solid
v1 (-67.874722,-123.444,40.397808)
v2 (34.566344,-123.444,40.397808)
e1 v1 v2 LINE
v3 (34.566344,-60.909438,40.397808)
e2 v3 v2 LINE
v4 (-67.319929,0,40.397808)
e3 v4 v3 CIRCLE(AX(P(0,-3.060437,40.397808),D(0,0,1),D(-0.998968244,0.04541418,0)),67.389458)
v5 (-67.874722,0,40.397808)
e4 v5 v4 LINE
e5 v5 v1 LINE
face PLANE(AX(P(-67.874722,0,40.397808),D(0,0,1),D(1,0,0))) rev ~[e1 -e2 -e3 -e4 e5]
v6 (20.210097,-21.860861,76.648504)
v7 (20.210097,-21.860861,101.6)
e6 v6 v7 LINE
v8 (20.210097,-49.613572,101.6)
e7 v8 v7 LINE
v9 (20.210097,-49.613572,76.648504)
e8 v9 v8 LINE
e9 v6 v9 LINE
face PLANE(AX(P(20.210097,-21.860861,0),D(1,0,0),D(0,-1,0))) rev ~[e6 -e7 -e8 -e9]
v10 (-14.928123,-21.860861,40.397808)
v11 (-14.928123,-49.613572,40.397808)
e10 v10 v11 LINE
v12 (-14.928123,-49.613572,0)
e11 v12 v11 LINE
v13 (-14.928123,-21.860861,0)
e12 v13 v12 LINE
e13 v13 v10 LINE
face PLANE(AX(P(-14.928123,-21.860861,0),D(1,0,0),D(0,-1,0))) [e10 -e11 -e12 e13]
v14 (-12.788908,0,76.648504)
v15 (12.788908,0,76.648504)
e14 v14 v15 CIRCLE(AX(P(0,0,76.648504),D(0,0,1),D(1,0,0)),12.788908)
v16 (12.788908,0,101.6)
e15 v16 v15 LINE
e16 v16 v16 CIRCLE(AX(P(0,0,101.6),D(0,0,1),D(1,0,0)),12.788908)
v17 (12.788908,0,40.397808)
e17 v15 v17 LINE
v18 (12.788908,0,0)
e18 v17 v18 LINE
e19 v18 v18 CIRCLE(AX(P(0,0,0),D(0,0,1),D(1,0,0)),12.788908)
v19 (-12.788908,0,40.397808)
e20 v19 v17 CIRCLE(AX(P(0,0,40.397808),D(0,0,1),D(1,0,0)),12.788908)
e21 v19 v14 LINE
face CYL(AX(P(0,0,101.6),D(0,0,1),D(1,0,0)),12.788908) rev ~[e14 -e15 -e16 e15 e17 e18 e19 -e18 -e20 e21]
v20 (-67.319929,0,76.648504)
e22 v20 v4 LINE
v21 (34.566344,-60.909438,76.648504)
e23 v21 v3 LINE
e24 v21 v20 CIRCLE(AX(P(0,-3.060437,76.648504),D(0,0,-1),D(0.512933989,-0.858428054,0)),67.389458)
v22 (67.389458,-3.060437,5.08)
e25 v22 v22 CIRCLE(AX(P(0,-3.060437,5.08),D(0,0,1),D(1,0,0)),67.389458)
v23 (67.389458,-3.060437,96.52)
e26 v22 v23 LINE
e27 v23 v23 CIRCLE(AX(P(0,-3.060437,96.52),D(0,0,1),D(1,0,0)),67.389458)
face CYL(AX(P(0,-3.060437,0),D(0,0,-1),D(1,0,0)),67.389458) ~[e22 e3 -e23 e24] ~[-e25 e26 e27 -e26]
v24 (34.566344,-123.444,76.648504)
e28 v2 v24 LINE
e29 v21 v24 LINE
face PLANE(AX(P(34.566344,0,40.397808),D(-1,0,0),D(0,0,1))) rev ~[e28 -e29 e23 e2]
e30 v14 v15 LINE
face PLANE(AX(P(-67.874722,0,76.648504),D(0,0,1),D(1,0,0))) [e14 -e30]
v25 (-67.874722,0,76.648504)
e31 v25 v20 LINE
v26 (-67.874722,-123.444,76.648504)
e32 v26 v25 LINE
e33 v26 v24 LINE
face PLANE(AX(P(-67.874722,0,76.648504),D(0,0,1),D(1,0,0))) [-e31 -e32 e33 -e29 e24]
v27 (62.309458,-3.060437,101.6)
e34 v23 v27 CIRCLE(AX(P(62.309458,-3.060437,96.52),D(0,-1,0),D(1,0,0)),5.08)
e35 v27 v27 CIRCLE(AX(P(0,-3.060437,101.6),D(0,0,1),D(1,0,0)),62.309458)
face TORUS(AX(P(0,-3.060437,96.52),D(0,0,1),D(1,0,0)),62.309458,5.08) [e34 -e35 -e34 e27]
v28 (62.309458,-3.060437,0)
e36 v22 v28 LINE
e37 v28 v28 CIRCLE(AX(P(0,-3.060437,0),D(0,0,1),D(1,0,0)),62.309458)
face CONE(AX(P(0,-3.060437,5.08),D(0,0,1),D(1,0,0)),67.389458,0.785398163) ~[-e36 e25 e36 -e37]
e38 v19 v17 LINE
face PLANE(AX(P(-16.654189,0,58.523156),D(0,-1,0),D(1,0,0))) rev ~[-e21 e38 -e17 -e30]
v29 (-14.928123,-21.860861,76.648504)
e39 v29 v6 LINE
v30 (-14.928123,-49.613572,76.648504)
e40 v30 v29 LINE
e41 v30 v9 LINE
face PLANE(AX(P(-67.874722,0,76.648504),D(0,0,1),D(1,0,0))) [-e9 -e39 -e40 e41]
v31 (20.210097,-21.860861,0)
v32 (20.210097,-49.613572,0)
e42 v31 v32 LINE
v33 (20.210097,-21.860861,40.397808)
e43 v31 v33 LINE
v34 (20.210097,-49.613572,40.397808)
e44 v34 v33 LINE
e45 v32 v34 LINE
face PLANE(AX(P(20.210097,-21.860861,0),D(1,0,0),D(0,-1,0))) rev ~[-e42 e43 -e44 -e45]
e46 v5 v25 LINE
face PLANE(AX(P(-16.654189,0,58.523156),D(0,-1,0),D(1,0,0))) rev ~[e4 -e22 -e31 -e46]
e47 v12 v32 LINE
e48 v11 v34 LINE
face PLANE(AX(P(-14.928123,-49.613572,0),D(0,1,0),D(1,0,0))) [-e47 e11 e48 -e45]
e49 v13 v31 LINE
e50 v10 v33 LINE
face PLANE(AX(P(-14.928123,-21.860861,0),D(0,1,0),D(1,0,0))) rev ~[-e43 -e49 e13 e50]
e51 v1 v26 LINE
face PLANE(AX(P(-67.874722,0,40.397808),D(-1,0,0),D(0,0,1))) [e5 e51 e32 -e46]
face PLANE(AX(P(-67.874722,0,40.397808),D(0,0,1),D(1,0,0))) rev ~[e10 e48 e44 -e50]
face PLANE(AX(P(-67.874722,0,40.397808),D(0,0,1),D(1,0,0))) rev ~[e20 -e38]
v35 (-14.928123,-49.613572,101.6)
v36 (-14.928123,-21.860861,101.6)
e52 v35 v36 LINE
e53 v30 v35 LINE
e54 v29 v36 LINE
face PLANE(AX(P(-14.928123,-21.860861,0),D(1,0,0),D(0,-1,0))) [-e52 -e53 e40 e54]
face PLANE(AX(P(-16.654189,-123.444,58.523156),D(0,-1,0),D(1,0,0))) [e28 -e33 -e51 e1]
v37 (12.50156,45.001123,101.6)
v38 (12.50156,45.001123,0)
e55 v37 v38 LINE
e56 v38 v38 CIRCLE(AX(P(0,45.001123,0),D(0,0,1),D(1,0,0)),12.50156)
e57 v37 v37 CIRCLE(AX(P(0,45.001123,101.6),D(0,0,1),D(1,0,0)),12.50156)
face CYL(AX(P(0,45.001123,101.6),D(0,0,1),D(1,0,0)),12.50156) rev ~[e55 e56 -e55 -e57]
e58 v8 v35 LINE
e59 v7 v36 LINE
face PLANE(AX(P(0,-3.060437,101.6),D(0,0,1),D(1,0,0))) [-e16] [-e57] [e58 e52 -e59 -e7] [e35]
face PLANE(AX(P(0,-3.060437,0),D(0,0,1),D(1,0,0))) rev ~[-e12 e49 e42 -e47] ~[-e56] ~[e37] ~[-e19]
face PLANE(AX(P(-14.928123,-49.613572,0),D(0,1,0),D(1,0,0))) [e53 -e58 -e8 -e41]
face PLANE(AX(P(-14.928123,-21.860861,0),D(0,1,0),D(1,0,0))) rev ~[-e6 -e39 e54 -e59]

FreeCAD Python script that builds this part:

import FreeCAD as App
import Part
import Sketcher
from FreeCAD import Vector
Q = App.Units.Quantity


def edges_at(feature, points):
    """Names of the edges that pass closest to the given points."""
    edges = feature.Shape.Edges
    near = lambda p: min(range(len(edges)), key=lambda i: edges[i].distToShape(Part.Vertex(*p))[0])
    return sorted({f"Edge{near(p) + 1}" for p in points})


def add_polygon(sketch, points):
    """Adds a closed chain of lines whose ends are joined by coincident constraints."""
    first, n = sketch.GeometryCount, len(points)
    for a, b in zip(points, points[1:] + points[:1]):
        sketch.addGeometry(Part.LineSegment(App.Vector(*a, 0), App.Vector(*b, 0)), False)
    for i in range(n):
        sketch.addConstraint(Sketcher.Constraint("Coincident", first + i, 2, first + (i + 1) % n, 1))

doc = App.newDocument("Part")
body = doc.addObject("PartDesign::Body", "Body")

# Sketch on XY plane
sketch1 = body.newObject("Sketcher::SketchObject", "Sketch")
sketch1.AttachmentSupport = (doc.getObject("XY_Plane"), [""])
sketch1.MapMode = "FlatFace"
sketch1.addGeometry(Part.Circle(Vector(0, -3, 0), Vector(0, 0, 1), 67), False)
sketch1.addConstraint(Sketcher.Constraint("PointOnObject", 0, 3, -2))
sketch1.addConstraint(Sketcher.Constraint("Diameter", 0, Q("134.778916 mm")))
sketch1.addConstraint(Sketcher.Constraint("DistanceY", 0, 3, -1, 1, Q("3.060437 mm")))
pad1 = body.newObject("PartDesign::Pad", "Pad")
pad1.Profile = sketch1
pad1.Length = Q("4 in")

# Sketch on XY plane
sketch2 = body.newObject("Sketcher::SketchObject", "Sketch001")
sketch2.AttachmentSupport = (doc.getObject("XY_Plane"), [""])
sketch2.MapMode = "FlatFace"
sketch2.AttachmentOffset = App.Placement(Vector(0, 0, 4 * 25.4), App.Rotation())
sketch2.addGeometry(Part.Circle(Vector(0, 0, 0), Vector(0, 0, 1), 13), False)
sketch2.addConstraint(Sketcher.Constraint("Coincident", 0, 3, -1, 1))
sketch2.addConstraint(Sketcher.Constraint("Diameter", 0, Q("25.577816 mm")))
pocket1 = body.newObject("PartDesign::Pocket", "Pocket")
pocket1.Profile = sketch2
pocket1.Length = Q("6.37 in")

# Sketch on XY plane
sketch3 = body.newObject("Sketcher::SketchObject", "Sketch002")
sketch3.AttachmentSupport = (doc.getObject("XY_Plane"), [""])
sketch3.MapMode = "FlatFace"
sketch3.AttachmentOffset = App.Placement(Vector(0, 0, 4 * 25.4), App.Rotation())
sketch3.addGeometry(Part.Circle(Vector(0, 45, 0), Vector(0, 0, 1), 13), False)
sketch3.addConstraint(Sketcher.Constraint("PointOnObject", 0, 3, -2))
sketch3.addConstraint(Sketcher.Constraint("Diameter", 0, Q("25.00312 mm")))
sketch3.addConstraint(Sketcher.Constraint("DistanceY", -1, 1, 0, 3, Q("45.001123 mm")))
pocket2 = body.newObject("PartDesign::Pocket", "Pocket001")
pocket2.Profile = sketch3
pocket2.Length = Q("4.79 in")
doc.recompute()

fillet = body.newObject("PartDesign::Fillet", "Fillet")
fillet.Base = (pocket2, edges_at(pocket2, [(-67.389, -3.06, 101.6)]))
fillet.Radius = Q("0.2 in")
doc.recompute()

chamfer = body.newObject("PartDesign::Chamfer", "Chamfer")
chamfer.Base = (fillet, edges_at(fillet, [(-67.389, -3.06, 0)]))
chamfer.Size = Q("0.2 in")

# Sketch on XY plane
sketch4 = body.newObject("Sketcher::SketchObject", "Sketch003")
sketch4.AttachmentSupport = (doc.getObject("XY_Plane"), [""])
sketch4.MapMode = "FlatFace"
add_polygon(sketch4, [(-15, -50), (-15, -22), (20, -22), (20, -50)])  # lines 0-3
sketch4.addConstraint(Sketcher.Constraint("Vertical", 0))
sketch4.addConstraint(Sketcher.Constraint("Horizontal", 1))
sketch4.addConstraint(Sketcher.Constraint("Vertical", 2))
sketch4.addConstraint(Sketcher.Constraint("Horizontal", 3))
sketch4.addConstraint(Sketcher.Constraint("DistanceX", 1, 1, 1, 2, Q("35.13822 mm")))
sketch4.addConstraint(Sketcher.Constraint("DistanceY", 0, 1, 0, 2, Q("27.752711 mm")))
sketch4.addConstraint(Sketcher.Constraint("DistanceY", 0, 2, -1, 1, Q("21.860861 mm")))
sketch4.addConstraint(Sketcher.Constraint("DistanceX", 0, 2, -1, 1, Q("14.928123 mm")))
pocket3 = body.newObject("PartDesign::Pocket", "Pocket002")
pocket3.Profile = sketch4
pocket3.Length = Q("8.79 in")
pocket3.Reversed = True

# Sketch on XZ plane
sketch5 = body.newObject("Sketcher::SketchObject", "Sketch004")
sketch5.AttachmentSupport = (doc.getObject("XZ_Plane"), [""])
sketch5.MapMode = "FlatFace"
add_polygon(sketch5, [(-68, 77), (-68, 40), (35, 40), (35, 77)])  # lines 0-3
sketch5.addConstraint(Sketcher.Constraint("Vertical", 0))
sketch5.addConstraint(Sketcher.Constraint("Horizontal", 1))
sketch5.addConstraint(Sketcher.Constraint("Vertical", 2))
sketch5.addConstraint(Sketcher.Constraint("Horizontal", 3))
sketch5.addConstraint(Sketcher.Constraint("DistanceX", 1, 1, 1, 2, Q("102.441065 mm")))
sketch5.addConstraint(Sketcher.Constraint("DistanceY", 0, 2, 0, 1, Q("36.250696 mm")))
sketch5.addConstraint(Sketcher.Constraint("DistanceX", 0, 2, -1, 1, Q("67.874722 mm")))
sketch5.addConstraint(Sketcher.Constraint("DistanceY", -1, 1, 0, 2, Q("40.397808 mm")))
pad2 = body.newObject("PartDesign::Pad", "Pad001")
pad2.Profile = sketch5
pad2.Length = Q("1 in")

# Sketch on XZ plane
sketch6 = body.newObject("Sketcher::SketchObject", "Sketch005")
sketch6.AttachmentSupport = (doc.getObject("XZ_Plane"), [""])
sketch6.MapMode = "FlatFace"
add_polygon(sketch6, [(-68, 77), (-68, 40), (35, 40), (35, 77)])  # lines 0-3
sketch6.addConstraint(Sketcher.Constraint("Vertical", 0))
sketch6.addConstraint(Sketcher.Constraint("Horizontal", 1))
sketch6.addConstraint(Sketcher.Constraint("Vertical", 2))
sketch6.addConstraint(Sketcher.Constraint("Horizontal", 3))
sketch6.addConstraint(Sketcher.Constraint("DistanceX", 1, 1, 1, 2, Q("102.441065 mm")))
sketch6.addConstraint(Sketcher.Constraint("DistanceY", 0, 2, 0, 1, Q("36.250696 mm")))
sketch6.addConstraint(Sketcher.Constraint("DistanceX", 0, 2, -1, 1, Q("67.874722 mm")))
sketch6.addConstraint(Sketcher.Constraint("DistanceY", -1, 1, 0, 2, Q("40.397808 mm")))
pad3 = body.newObject("PartDesign::Pad", "Pad002")
pad3.Profile = sketch6
pad3.Length = Q("4.86 in")

doc.recompute()
